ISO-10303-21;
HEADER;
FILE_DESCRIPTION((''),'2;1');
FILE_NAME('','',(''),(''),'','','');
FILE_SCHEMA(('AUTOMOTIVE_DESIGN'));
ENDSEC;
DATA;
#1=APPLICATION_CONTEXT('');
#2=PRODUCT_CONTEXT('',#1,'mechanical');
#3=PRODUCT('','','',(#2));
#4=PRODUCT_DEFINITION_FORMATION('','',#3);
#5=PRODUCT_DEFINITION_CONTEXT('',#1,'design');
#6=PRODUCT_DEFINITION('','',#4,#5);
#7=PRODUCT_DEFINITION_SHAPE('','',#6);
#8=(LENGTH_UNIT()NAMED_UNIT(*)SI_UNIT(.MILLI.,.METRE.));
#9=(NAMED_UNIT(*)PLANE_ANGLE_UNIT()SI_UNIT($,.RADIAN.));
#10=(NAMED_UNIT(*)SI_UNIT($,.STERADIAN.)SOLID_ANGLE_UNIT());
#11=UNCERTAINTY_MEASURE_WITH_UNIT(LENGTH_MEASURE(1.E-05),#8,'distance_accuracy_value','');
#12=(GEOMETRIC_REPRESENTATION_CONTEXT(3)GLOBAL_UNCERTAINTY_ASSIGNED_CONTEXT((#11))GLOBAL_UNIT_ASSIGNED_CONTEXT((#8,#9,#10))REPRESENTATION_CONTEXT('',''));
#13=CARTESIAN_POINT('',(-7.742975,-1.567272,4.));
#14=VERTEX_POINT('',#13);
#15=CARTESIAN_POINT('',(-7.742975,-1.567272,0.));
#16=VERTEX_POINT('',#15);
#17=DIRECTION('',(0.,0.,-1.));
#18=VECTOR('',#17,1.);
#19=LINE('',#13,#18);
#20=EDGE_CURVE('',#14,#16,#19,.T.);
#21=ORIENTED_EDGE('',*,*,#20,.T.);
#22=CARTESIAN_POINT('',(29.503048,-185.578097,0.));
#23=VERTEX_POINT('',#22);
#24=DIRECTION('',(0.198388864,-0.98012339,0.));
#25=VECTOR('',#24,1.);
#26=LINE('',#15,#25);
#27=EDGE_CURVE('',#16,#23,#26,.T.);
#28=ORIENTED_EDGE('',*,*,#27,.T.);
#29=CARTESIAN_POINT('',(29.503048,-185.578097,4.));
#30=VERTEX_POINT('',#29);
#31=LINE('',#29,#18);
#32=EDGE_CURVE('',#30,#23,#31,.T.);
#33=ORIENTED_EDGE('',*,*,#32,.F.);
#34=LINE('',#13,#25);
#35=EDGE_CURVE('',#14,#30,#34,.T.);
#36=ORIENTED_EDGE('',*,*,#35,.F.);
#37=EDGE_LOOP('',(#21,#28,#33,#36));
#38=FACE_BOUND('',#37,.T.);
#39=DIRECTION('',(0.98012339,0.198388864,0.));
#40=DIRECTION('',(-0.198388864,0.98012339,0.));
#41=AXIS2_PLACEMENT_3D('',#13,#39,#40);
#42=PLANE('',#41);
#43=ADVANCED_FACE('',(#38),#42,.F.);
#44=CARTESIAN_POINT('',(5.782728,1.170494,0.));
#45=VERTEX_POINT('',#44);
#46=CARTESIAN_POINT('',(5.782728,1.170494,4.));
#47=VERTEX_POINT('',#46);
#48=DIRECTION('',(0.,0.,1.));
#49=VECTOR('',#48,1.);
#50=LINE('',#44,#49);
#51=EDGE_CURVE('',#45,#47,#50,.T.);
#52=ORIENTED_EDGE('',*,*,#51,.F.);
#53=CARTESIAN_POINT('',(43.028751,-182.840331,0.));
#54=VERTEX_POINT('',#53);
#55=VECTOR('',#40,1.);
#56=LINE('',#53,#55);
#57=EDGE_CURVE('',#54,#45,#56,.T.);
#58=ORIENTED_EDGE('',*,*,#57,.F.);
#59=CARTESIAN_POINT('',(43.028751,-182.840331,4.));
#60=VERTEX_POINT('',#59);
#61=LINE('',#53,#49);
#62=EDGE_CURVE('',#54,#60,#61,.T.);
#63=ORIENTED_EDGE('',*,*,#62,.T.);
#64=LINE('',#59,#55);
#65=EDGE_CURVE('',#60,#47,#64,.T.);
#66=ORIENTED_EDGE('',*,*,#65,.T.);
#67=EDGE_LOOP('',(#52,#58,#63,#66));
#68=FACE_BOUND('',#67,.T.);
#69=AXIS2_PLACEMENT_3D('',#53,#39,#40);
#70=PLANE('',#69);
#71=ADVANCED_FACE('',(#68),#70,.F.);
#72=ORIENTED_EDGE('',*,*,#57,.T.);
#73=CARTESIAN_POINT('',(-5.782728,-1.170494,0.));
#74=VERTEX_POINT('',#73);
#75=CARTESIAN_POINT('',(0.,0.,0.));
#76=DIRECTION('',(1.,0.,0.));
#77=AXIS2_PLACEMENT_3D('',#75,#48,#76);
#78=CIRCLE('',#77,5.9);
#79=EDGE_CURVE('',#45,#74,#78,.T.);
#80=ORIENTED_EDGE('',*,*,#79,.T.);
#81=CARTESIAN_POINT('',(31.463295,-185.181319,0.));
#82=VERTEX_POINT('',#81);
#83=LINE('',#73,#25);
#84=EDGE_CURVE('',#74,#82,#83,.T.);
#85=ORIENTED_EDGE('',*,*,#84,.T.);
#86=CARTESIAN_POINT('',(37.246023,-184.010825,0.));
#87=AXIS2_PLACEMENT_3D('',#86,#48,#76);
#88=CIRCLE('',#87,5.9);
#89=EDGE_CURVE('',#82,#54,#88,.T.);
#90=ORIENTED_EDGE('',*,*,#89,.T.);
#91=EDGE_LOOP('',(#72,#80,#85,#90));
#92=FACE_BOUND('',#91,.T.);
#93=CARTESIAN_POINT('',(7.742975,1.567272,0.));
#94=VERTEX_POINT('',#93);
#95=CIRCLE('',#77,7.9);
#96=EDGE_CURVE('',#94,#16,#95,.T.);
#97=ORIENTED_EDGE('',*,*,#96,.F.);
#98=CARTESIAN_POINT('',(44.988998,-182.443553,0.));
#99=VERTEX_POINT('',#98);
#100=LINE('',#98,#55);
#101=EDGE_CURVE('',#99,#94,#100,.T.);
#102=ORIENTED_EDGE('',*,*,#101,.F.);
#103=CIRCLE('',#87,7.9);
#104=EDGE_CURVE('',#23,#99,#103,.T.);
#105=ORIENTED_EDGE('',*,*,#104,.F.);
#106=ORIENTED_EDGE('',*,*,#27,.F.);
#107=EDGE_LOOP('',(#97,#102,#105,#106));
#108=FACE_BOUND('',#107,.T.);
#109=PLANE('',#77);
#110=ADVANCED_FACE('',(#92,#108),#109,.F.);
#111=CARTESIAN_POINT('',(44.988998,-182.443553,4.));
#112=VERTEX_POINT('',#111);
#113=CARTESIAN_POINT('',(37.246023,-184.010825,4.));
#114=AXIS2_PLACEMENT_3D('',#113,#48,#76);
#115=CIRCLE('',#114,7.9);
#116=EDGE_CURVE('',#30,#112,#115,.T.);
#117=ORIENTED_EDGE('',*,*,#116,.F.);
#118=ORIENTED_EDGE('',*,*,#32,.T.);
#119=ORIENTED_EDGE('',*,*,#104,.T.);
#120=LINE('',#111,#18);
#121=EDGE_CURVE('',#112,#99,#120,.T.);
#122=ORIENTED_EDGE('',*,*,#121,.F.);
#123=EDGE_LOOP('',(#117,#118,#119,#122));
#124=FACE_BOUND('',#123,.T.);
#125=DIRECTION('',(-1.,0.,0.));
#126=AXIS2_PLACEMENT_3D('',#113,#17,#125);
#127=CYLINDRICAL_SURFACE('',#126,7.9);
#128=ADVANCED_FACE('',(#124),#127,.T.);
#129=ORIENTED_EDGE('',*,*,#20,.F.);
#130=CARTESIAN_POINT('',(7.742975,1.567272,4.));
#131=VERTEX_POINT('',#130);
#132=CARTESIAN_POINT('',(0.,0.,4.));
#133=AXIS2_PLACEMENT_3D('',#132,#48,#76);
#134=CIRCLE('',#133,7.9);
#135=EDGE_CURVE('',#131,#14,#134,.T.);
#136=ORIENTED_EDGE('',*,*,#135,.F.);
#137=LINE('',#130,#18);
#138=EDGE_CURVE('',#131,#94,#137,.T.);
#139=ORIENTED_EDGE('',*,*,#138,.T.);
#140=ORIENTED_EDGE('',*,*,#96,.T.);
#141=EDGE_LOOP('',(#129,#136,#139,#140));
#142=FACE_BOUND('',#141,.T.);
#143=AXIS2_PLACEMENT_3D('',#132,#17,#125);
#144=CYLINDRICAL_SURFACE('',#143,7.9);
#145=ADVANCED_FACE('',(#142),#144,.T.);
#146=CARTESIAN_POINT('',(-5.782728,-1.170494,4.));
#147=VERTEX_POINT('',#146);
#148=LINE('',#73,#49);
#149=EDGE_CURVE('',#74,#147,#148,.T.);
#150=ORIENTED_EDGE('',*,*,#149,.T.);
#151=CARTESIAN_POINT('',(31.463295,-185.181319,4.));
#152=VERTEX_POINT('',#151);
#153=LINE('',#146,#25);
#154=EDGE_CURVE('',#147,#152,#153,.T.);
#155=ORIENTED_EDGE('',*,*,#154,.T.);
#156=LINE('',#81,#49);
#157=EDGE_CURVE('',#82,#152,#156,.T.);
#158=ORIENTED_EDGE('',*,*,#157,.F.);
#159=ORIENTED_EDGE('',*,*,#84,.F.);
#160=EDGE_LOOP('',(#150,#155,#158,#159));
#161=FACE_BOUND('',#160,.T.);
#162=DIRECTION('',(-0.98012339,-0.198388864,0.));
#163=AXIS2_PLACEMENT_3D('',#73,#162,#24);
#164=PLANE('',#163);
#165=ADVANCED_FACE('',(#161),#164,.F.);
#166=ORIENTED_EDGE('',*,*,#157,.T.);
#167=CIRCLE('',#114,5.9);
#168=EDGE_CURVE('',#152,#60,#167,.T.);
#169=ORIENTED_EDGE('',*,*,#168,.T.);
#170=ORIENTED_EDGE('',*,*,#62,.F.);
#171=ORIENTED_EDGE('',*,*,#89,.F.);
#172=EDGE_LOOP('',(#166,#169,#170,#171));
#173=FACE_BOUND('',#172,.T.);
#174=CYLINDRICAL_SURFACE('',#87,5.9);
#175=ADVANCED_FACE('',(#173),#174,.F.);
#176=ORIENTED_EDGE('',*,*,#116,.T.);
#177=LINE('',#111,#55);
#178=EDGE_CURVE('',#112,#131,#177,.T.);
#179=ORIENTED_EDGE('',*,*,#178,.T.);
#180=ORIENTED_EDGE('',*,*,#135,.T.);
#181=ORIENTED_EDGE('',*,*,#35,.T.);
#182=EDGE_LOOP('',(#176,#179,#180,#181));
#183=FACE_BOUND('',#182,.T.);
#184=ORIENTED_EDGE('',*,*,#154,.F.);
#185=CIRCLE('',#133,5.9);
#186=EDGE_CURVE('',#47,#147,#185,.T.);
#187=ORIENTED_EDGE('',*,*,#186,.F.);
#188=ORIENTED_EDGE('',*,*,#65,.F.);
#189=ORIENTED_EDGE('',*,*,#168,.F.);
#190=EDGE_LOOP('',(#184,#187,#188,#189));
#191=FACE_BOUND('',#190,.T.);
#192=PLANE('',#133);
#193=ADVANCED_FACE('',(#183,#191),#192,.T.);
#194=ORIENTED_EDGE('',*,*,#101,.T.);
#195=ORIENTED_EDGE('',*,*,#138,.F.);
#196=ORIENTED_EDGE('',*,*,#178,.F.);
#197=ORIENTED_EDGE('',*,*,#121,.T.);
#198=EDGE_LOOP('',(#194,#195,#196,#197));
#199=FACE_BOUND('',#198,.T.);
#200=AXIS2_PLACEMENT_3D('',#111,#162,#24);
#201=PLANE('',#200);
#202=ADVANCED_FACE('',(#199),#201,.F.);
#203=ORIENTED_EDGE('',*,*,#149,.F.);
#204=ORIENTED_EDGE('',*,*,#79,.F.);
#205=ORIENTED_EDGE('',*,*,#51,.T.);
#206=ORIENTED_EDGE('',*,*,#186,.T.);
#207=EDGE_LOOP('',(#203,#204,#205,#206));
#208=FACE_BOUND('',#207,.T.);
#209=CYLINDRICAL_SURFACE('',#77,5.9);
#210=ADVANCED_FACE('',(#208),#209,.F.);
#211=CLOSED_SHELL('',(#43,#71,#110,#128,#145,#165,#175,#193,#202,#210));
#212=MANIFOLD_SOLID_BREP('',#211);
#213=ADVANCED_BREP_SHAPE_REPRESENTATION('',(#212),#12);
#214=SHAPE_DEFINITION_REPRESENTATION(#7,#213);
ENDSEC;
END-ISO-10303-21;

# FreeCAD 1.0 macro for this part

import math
import FreeCAD as App
import Part
import Sketcher

V = App.Vector

doc = App.newDocument("Part")
params = doc.addObject("Spreadsheet::Sheet", "Params")
for row, (alias, value) in enumerate([
    ("sketch1_radius", "7.9 mm"),
    ("pad1_length", "4 mm"),
    ("sketch2_radius", "5.9 mm"),
    ("pocket1_length", "4 mm"),
], start=1):
    params.set(f"A{row}", alias)
    params.set(f"B{row}", "=" + value)
    params.setAlias(f"B{row}", alias)

body = doc.addObject("PartDesign::Body", "Body")

sketch1 = body.newObject("Sketcher::SketchObject", "Sketch")
sketch1.AttachmentSupport = (doc.getObject("XY_Plane"), [""])
sketch1.MapMode = "FlatFace"
sketch1.addGeometry([
    Part.LineSegment(V(45, -182, 0), V(8, 2, 0)),
    Part.ArcOfCircle(Part.Circle(V(0, 0, 0), V(0, 0, 1), 8), math.radians(11), math.radians(191)),
    Part.LineSegment(V(-8, -2, 0), V(30, -186, 0)),
    Part.ArcOfCircle(Part.Circle(V(37, -184, 0), V(0, 0, 1), 8), math.radians(-169), math.radians(11)),
], False)
sketch1.addConstraint([
    Sketcher.Constraint("Tangent", 0, 2, 1, 1),
    Sketcher.Constraint("Tangent", 1, 2, 2, 1),
    Sketcher.Constraint("Tangent", 2, 2, 3, 1),
    Sketcher.Constraint("Tangent", 3, 2, 0, 1),
    Sketcher.Constraint("Coincident", 1, 3, -1, 1),
    Sketcher.Constraint("Equal", 1, 3),
    Sketcher.Constraint("Radius", 1, 7.9),
    Sketcher.Constraint("DistanceX", -1, 1, 3, 2, 44.988998),
    Sketcher.Constraint("Distance", 0, 187.74251),
])
sketch1.setExpression("Constraints[6]", "Params.sketch1_radius")
pad1 = body.newObject("PartDesign::Pad", "Pad")
pad1.Profile = sketch1
pad1.setExpression("Length", "Params.pad1_length")

sketch2 = body.newObject("Sketcher::SketchObject", "Sketch001")
sketch2.AttachmentSupport = (doc.getObject("XY_Plane"), [""])
sketch2.MapMode = "FlatFace"
sketch2.AttachmentOffset = App.Placement(V(0, 0, 4), App.Rotation())
sketch2.addGeometry([
    Part.LineSegment(V(43, -183, 0), V(6, 1, 0)),
    Part.ArcOfCircle(Part.Circle(V(0, 0, 0), V(0, 0, 1), 6), math.radians(11), math.radians(191)),
    Part.LineSegment(V(-6, -1, 0), V(31, -185, 0)),
    Part.ArcOfCircle(Part.Circle(V(37, -184, 0), V(0, 0, 1), 6), math.radians(-169), math.radians(11)),
], False)
sketch2.addConstraint([
    Sketcher.Constraint("Tangent", 0, 2, 1, 1),
    Sketcher.Constraint("Tangent", 1, 2, 2, 1),
    Sketcher.Constraint("Tangent", 2, 2, 3, 1),
    Sketcher.Constraint("Tangent", 3, 2, 0, 1),
    Sketcher.Constraint("Coincident", 1, 3, -1, 1),
    Sketcher.Constraint("Equal", 1, 3),
    Sketcher.Constraint("Radius", 1, 5.9),
    Sketcher.Constraint("Distance", 0, 187.74251),
    Sketcher.Constraint("DistanceY", 2, 2, -1, 1, 185.181319),
])
sketch2.setExpression("Constraints[6]", "Params.sketch2_radius")
pocket1 = body.newObject("PartDesign::Pocket", "Pocket")
pocket1.Profile = sketch2
pocket1.setExpression("Length", "Params.pocket1_length")

doc.recompute()
